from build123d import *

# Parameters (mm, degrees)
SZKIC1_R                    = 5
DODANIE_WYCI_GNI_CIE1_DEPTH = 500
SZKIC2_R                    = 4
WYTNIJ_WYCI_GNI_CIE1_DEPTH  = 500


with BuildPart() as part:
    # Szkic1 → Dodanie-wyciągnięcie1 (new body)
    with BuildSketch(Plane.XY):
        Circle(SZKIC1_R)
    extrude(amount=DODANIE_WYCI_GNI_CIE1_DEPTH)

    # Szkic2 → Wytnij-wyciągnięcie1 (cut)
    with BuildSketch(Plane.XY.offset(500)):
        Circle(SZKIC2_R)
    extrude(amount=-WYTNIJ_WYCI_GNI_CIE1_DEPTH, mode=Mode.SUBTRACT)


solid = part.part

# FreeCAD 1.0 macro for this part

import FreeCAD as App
import Part
import Sketcher

V = App.Vector

doc = App.newDocument("Part")
body = doc.addObject("PartDesign::Body", "Body")

sketch1 = doc.addObject("Sketcher::SketchObject", "Sketch")
body.addObject(sketch1)
sketch1.AttachmentSupport = (doc.XY_Plane, [""])
sketch1.MapMode = "FlatFace"
sketch1.addGeometry(Part.Circle(V(0, 0, 0), V(0, 0, 1), 5), False)
sketch1.addConstraint(Sketcher.Constraint("Coincident", 0, 3, -1, 1))
sketch1.addConstraint(Sketcher.Constraint("Diameter", 0, 10.0))
pad1 = doc.addObject("PartDesign::Pad", "Pad")
body.addObject(pad1)
pad1.Profile = sketch1
pad1.Length = 500

sketch2 = doc.addObject("Sketcher::SketchObject", "Sketch001")
body.addObject(sketch2)
sketch2.AttachmentSupport = (doc.XY_Plane, [""])
sketch2.MapMode = "FlatFace"
sketch2.AttachmentOffset = App.Placement(V(0, 0, 500), App.Rotation())
sketch2.addGeometry(Part.Circle(V(0, 0, 0), V(0, 0, 1), 4), False)
sketch2.addConstraint(Sketcher.Constraint("Coincident", 0, 3, -1, 1))
sketch2.addConstraint(Sketcher.Constraint("Diameter", 0, 8.0))
pocket1 = doc.addObject("PartDesign::Pocket", "Pocket")
body.addObject(pocket1)
pocket1.Profile = sketch2
pocket1.Length = 500

doc.recompute()
